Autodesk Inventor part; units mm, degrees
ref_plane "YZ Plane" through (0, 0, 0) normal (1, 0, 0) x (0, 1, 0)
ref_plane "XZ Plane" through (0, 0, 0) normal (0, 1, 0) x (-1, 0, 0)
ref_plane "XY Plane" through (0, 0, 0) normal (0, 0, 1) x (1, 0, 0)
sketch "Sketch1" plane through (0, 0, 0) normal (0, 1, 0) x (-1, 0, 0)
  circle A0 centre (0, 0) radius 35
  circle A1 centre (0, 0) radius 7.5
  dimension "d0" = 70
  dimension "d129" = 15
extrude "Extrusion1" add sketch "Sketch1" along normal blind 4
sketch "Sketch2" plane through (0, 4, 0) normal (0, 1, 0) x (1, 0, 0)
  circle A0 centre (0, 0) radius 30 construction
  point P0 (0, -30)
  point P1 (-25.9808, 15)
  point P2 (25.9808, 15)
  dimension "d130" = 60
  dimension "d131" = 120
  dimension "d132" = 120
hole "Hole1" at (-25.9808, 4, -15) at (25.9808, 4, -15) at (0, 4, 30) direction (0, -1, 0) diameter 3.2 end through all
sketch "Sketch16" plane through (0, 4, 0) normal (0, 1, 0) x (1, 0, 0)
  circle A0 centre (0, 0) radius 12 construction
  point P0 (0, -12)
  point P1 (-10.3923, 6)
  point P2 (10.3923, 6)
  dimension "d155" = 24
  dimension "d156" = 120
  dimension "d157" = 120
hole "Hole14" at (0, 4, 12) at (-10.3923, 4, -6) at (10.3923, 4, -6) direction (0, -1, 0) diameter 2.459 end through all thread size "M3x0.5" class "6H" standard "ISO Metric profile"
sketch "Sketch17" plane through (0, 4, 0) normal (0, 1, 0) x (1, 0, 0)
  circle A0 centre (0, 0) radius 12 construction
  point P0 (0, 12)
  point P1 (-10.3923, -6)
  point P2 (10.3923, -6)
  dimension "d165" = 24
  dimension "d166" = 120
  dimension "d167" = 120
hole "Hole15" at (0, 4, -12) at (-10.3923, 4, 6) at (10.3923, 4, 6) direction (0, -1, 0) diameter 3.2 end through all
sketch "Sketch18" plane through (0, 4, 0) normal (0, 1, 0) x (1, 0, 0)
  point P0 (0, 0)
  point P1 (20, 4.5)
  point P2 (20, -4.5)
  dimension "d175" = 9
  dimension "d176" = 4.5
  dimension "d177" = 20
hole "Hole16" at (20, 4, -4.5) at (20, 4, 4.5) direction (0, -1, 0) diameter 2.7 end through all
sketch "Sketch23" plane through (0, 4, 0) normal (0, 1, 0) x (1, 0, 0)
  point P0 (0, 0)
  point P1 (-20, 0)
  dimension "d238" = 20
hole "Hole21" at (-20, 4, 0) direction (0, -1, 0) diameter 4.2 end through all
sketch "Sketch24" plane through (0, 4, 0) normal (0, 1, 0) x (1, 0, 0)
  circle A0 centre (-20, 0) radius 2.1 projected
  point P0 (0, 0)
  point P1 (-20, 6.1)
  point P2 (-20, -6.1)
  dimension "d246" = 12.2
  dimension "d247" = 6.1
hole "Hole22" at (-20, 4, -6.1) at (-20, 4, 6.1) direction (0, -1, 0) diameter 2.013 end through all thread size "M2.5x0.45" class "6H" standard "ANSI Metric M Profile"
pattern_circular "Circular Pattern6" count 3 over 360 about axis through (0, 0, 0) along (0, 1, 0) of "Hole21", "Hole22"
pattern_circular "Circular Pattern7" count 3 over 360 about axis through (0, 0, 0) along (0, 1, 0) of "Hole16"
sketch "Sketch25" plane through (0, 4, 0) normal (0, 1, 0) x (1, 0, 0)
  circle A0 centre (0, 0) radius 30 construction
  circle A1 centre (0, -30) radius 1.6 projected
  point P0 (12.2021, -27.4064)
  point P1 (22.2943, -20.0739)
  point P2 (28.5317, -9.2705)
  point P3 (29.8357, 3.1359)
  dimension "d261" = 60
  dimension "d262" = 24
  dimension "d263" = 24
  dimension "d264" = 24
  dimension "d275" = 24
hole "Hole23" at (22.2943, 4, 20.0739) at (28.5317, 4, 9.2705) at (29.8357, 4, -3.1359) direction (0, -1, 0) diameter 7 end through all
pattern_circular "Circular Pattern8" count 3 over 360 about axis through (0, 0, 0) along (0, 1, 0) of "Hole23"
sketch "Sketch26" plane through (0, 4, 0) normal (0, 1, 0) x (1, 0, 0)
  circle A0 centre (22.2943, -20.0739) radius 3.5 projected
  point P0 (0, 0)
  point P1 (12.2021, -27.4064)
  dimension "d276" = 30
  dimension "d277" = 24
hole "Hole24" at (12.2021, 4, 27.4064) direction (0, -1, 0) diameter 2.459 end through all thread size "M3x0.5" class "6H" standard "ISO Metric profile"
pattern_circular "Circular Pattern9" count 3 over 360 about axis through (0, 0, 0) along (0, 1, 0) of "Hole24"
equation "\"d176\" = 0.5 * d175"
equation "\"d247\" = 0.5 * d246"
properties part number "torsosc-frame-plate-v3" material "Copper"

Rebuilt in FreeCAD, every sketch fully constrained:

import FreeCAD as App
import Part
import Sketcher
from FreeCAD import Vector

doc = App.newDocument("Part")
body = doc.addObject("PartDesign::Body", "Body")

sketch1 = body.newObject("Sketcher::SketchObject", "Sketch")
sketch1.AttachmentSupport = (doc.getObject("XZ_Plane"), [""])
sketch1.MapMode = "FlatFace"
sketch1.addGeometry(Part.Circle(Vector(0, 0, 0), Vector(0, 0, 1), 35), False)
sketch1.addGeometry(Part.Circle(Vector(0, 0, 0), Vector(0, 0, 1), 8), False)
sketch1.addConstraint(Sketcher.Constraint("Coincident", 0, 3, -1, 1))
sketch1.addConstraint(Sketcher.Constraint("Coincident", 1, 3, -1, 1))
sketch1.addConstraint(Sketcher.Constraint("Diameter", 0, 70.0))
sketch1.addConstraint(Sketcher.Constraint("Diameter", 1, 15.0))
pad1 = body.newObject("PartDesign::Pad", "Pad")
pad1.Profile = sketch1
pad1.Length = 4
pad1.Reversed = True

sketch2 = body.newObject("Sketcher::SketchObject", "Sketch001")
sketch2.AttachmentSupport = (doc.getObject("XZ_Plane"), [""])
sketch2.MapMode = "FlatFace"
sketch2.AttachmentOffset = App.Placement(Vector(0, 0, -4), App.Rotation())
sketch2.addGeometry(Part.Circle(Vector(-26, -15, 0), Vector(0, 0, 1), 1.6), False)
sketch2.addGeometry(Part.Circle(Vector(26, -15, 0), Vector(0, 0, 1), 1.6), False)
sketch2.addGeometry(Part.Circle(Vector(0, 30, 0), Vector(0, 0, 1), 1.6), False)
sketch2.addConstraint(Sketcher.Constraint("Equal", 0, 1))
sketch2.addConstraint(Sketcher.Constraint("Equal", 1, 2))
sketch2.addConstraint(Sketcher.Constraint("Symmetric", 0, 3, 1, 3, -2))
sketch2.addConstraint(Sketcher.Constraint("PointOnObject", 2, 3, -2))
sketch2.addConstraint(Sketcher.Constraint("Diameter", 0, 3.2))
sketch2.addConstraint(Sketcher.Constraint("DistanceY", 0, 3, -1, 1, 15.0))
sketch2.addConstraint(Sketcher.Constraint("DistanceY", -1, 1, 2, 3, 30.0))
sketch2.addConstraint(Sketcher.Constraint("DistanceX", 0, 3, -1, 1, 25.9808))
doc.recompute()
hole = body.newObject("PartDesign::Hole", "Hole")
hole.Profile = sketch2
hole.ThreadType = "None"
hole.Diameter = 3.2
hole.DepthType = "ThroughAll"
hole.Reversed = True

sketch3 = body.newObject("Sketcher::SketchObject", "Sketch002")
sketch3.AttachmentSupport = (doc.getObject("XZ_Plane"), [""])
sketch3.MapMode = "FlatFace"
sketch3.AttachmentOffset = App.Placement(Vector(0, 0, -4), App.Rotation())
sketch3.addGeometry(Part.Circle(Vector(0, 12, 0), Vector(0, 0, 1), 1.2), False)
sketch3.addGeometry(Part.Circle(Vector(-10.4, -6, 0), Vector(0, 0, 1), 1.2), False)
sketch3.addGeometry(Part.Circle(Vector(10.4, -6, 0), Vector(0, 0, 1), 1.2), False)
sketch3.addConstraint(Sketcher.Constraint("Equal", 0, 1))
sketch3.addConstraint(Sketcher.Constraint("Equal", 1, 2))
sketch3.addConstraint(Sketcher.Constraint("Symmetric", 1, 3, 2, 3, -2))
sketch3.addConstraint(Sketcher.Constraint("PointOnObject", 0, 3, -2))
sketch3.addConstraint(Sketcher.Constraint("Diameter", 0, 2.459))
sketch3.addConstraint(Sketcher.Constraint("DistanceY", -1, 1, 0, 3, 12.0))
sketch3.addConstraint(Sketcher.Constraint("DistanceY", 1, 3, -1, 1, 6.0))
sketch3.addConstraint(Sketcher.Constraint("DistanceX", 1, 3, -1, 1, 10.3923))
doc.recompute()
hole2 = body.newObject("PartDesign::Hole", "Hole001")
hole2.Profile = sketch3
hole2.ThreadType = "None"
hole2.Diameter = 2.459
hole2.DepthType = "ThroughAll"
hole2.Reversed = True

sketch4 = body.newObject("Sketcher::SketchObject", "Sketch003")
sketch4.AttachmentSupport = (doc.getObject("XZ_Plane"), [""])
sketch4.MapMode = "FlatFace"
sketch4.AttachmentOffset = App.Placement(Vector(0, 0, -4), App.Rotation())
sketch4.addGeometry(Part.Circle(Vector(0, -12, 0), Vector(0, 0, 1), 1.6), False)
sketch4.addGeometry(Part.Circle(Vector(-10.4, 6, 0), Vector(0, 0, 1), 1.6), False)
sketch4.addGeometry(Part.Circle(Vector(10.4, 6, 0), Vector(0, 0, 1), 1.6), False)
sketch4.addConstraint(Sketcher.Constraint("Equal", 0, 1))
sketch4.addConstraint(Sketcher.Constraint("Equal", 1, 2))
sketch4.addConstraint(Sketcher.Constraint("Symmetric", 1, 3, 2, 3, -2))
sketch4.addConstraint(Sketcher.Constraint("PointOnObject", 0, 3, -2))
sketch4.addConstraint(Sketcher.Constraint("Diameter", 0, 3.2))
sketch4.addConstraint(Sketcher.Constraint("DistanceY", 0, 3, -1, 1, 12.0))
sketch4.addConstraint(Sketcher.Constraint("DistanceY", -1, 1, 1, 3, 6.0))
sketch4.addConstraint(Sketcher.Constraint("DistanceX", 1, 3, -1, 1, 10.3923))
doc.recompute()
hole3 = body.newObject("PartDesign::Hole", "Hole002")
hole3.Profile = sketch4
hole3.ThreadType = "None"
hole3.Diameter = 3.2
hole3.DepthType = "ThroughAll"
hole3.Reversed = True

sketch5 = body.newObject("Sketcher::SketchObject", "Sketch004")
sketch5.AttachmentSupport = (doc.getObject("XZ_Plane"), [""])
sketch5.MapMode = "FlatFace"
sketch5.AttachmentOffset = App.Placement(Vector(0, 0, -4), App.Rotation())
sketch5.addGeometry(Part.Circle(Vector(20, -4.5, 0), Vector(0, 0, 1), 1.4), False)
sketch5.addGeometry(Part.Circle(Vector(20, 4.5, 0), Vector(0, 0, 1), 1.4), False)
sketch5.addConstraint(Sketcher.Constraint("Equal", 0, 1))
sketch5.addConstraint(Sketcher.Constraint("Symmetric", 0, 3, 1, 3, -1))
sketch5.addConstraint(Sketcher.Constraint("Diameter", 0, 2.7))
sketch5.addConstraint(Sketcher.Constraint("DistanceX", -1, 1, 0, 3, 20.0))
sketch5.addConstraint(Sketcher.Constraint("DistanceY", 0, 3, 1, 3, 9.0))
doc.recompute()
hole4 = body.newObject("PartDesign::Hole", "Hole003")
hole4.Profile = sketch5
hole4.ThreadType = "None"
hole4.Diameter = 2.7
hole4.DepthType = "ThroughAll"
hole4.Reversed = True

sketch6 = body.newObject("Sketcher::SketchObject", "Sketch005")
sketch6.AttachmentSupport = (doc.getObject("XZ_Plane"), [""])
sketch6.MapMode = "FlatFace"
sketch6.AttachmentOffset = App.Placement(Vector(0, 0, -4), App.Rotation())
sketch6.addGeometry(Part.Circle(Vector(-20, 0, 0), Vector(0, 0, 1), 2.1), False)
sketch6.addConstraint(Sketcher.Constraint("PointOnObject", 0, 3, -1))
sketch6.addConstraint(Sketcher.Constraint("Diameter", 0, 4.2))
sketch6.addConstraint(Sketcher.Constraint("DistanceX", 0, 3, -1, 1, 20.0))
doc.recompute()
hole5 = body.newObject("PartDesign::Hole", "Hole004")
hole5.Profile = sketch6
hole5.ThreadType = "None"
hole5.Diameter = 4.2
hole5.DepthType = "ThroughAll"
hole5.Reversed = True

sketch7 = body.newObject("Sketcher::SketchObject", "Sketch006")
sketch7.AttachmentSupport = (doc.getObject("XZ_Plane"), [""])
sketch7.MapMode = "FlatFace"
sketch7.AttachmentOffset = App.Placement(Vector(0, 0, -4), App.Rotation())
sketch7.addGeometry(Part.Circle(Vector(-20, -6.1, 0), Vector(0, 0, 1), 1), False)
sketch7.addGeometry(Part.Circle(Vector(-20, 6.1, 0), Vector(0, 0, 1), 1), False)
sketch7.addConstraint(Sketcher.Constraint("Equal", 0, 1))
sketch7.addConstraint(Sketcher.Constraint("Symmetric", 0, 3, 1, 3, -1))
sketch7.addConstraint(Sketcher.Constraint("Diameter", 0, 2.013))
sketch7.addConstraint(Sketcher.Constraint("DistanceX", 0, 3, -1, 1, 20.0))
sketch7.addConstraint(Sketcher.Constraint("DistanceY", 0, 3, -1, 1, 6.1))
doc.recompute()
hole6 = body.newObject("PartDesign::Hole", "Hole005")
hole6.Profile = sketch7
hole6.ThreadType = "None"
hole6.Diameter = 2.013
hole6.DepthType = "ThroughAll"
hole6.Reversed = True
doc.recompute()

polarpattern = body.newObject("PartDesign::PolarPattern", "PolarPattern")
polarpattern.Originals = [hole5, hole6]
polarpattern.Axis = (doc.getObject("Y_Axis"), [""])
polarpattern.Angle = 360
polarpattern.Occurrences = 3
body.Tip = polarpattern
doc.recompute()

polarpattern2 = body.newObject("PartDesign::PolarPattern", "PolarPattern001")
polarpattern2.Originals = [hole4]
polarpattern2.Axis = (doc.getObject("Y_Axis"), [""])
polarpattern2.Angle = 360
polarpattern2.Occurrences = 3
body.Tip = polarpattern2

sketch8 = body.newObject("Sketcher::SketchObject", "Sketch007")
sketch8.AttachmentSupport = (doc.getObject("XZ_Plane"), [""])
sketch8.MapMode = "FlatFace"
sketch8.AttachmentOffset = App.Placement(Vector(0, 0, -4), App.Rotation())
sketch8.addGeometry(Part.Circle(Vector(22.3, 20.1, 0), Vector(0, 0, 1), 3.5), False)
sketch8.addGeometry(Part.Circle(Vector(28.5, 9.3, 0), Vector(0, 0, 1), 3.5), False)
sketch8.addGeometry(Part.Circle(Vector(29.8, -3.1, 0), Vector(0, 0, 1), 3.5), False)
sketch8.addConstraint(Sketcher.Constraint("Equal", 0, 1))
sketch8.addConstraint(Sketcher.Constraint("Equal", 1, 2))
sketch8.addConstraint(Sketcher.Constraint("Diameter", 0, 7.0))
sketch8.addConstraint(Sketcher.Constraint("DistanceY", -1, 1, 0, 3, 20.074))
sketch8.addConstraint(Sketcher.Constraint("DistanceY", 2, 3, -1, 1, 3.136))
sketch8.addConstraint(Sketcher.Constraint("DistanceX", 1, 3, 2, 3, 1.304))
sketch8.addConstraint(Sketcher.Constraint("DistanceX", -1, 1, 0, 3, 22.2943))
sketch8.addConstraint(Sketcher.Constraint("DistanceX", -1, 1, 1, 3, 28.5317))
sketch8.addConstraint(Sketcher.Constraint("DistanceY", -1, 1, 1, 3, 9.2705))
doc.recompute()
hole7 = body.newObject("PartDesign::Hole", "Hole006")
hole7.Profile = sketch8
hole7.ThreadType = "None"
hole7.Diameter = 7
hole7.DepthType = "ThroughAll"
hole7.Reversed = True
doc.recompute()

polarpattern3 = body.newObject("PartDesign::PolarPattern", "PolarPattern002")
polarpattern3.Originals = [hole7]
polarpattern3.Axis = (doc.getObject("Y_Axis"), [""])
polarpattern3.Angle = 360
polarpattern3.Occurrences = 3
body.Tip = polarpattern3

sketch9 = body.newObject("Sketcher::SketchObject", "Sketch008")
sketch9.AttachmentSupport = (doc.getObject("XZ_Plane"), [""])
sketch9.MapMode = "FlatFace"
sketch9.AttachmentOffset = App.Placement(Vector(0, 0, -4), App.Rotation())
sketch9.addGeometry(Part.Circle(Vector(12.2, 27.4, 0), Vector(0, 0, 1), 1.2), False)
sketch9.addConstraint(Sketcher.Constraint("Diameter", 0, 2.459))
sketch9.addConstraint(Sketcher.Constraint("DistanceX", -1, 1, 0, 3, 12.202))
sketch9.addConstraint(Sketcher.Constraint("DistanceY", -1, 1, 0, 3, 27.4064))
doc.recompute()
hole8 = body.newObject("PartDesign::Hole", "Hole007")
hole8.Profile = sketch9
hole8.ThreadType = "None"
hole8.Diameter = 2.459
hole8.DepthType = "ThroughAll"
hole8.Reversed = True
doc.recompute()

polarpattern4 = body.newObject("PartDesign::PolarPattern", "PolarPattern003")
polarpattern4.Originals = [hole8]
polarpattern4.Axis = (doc.getObject("Y_Axis"), [""])
polarpattern4.Angle = 360
polarpattern4.Occurrences = 3
body.Tip = polarpattern4

doc.recompute()
